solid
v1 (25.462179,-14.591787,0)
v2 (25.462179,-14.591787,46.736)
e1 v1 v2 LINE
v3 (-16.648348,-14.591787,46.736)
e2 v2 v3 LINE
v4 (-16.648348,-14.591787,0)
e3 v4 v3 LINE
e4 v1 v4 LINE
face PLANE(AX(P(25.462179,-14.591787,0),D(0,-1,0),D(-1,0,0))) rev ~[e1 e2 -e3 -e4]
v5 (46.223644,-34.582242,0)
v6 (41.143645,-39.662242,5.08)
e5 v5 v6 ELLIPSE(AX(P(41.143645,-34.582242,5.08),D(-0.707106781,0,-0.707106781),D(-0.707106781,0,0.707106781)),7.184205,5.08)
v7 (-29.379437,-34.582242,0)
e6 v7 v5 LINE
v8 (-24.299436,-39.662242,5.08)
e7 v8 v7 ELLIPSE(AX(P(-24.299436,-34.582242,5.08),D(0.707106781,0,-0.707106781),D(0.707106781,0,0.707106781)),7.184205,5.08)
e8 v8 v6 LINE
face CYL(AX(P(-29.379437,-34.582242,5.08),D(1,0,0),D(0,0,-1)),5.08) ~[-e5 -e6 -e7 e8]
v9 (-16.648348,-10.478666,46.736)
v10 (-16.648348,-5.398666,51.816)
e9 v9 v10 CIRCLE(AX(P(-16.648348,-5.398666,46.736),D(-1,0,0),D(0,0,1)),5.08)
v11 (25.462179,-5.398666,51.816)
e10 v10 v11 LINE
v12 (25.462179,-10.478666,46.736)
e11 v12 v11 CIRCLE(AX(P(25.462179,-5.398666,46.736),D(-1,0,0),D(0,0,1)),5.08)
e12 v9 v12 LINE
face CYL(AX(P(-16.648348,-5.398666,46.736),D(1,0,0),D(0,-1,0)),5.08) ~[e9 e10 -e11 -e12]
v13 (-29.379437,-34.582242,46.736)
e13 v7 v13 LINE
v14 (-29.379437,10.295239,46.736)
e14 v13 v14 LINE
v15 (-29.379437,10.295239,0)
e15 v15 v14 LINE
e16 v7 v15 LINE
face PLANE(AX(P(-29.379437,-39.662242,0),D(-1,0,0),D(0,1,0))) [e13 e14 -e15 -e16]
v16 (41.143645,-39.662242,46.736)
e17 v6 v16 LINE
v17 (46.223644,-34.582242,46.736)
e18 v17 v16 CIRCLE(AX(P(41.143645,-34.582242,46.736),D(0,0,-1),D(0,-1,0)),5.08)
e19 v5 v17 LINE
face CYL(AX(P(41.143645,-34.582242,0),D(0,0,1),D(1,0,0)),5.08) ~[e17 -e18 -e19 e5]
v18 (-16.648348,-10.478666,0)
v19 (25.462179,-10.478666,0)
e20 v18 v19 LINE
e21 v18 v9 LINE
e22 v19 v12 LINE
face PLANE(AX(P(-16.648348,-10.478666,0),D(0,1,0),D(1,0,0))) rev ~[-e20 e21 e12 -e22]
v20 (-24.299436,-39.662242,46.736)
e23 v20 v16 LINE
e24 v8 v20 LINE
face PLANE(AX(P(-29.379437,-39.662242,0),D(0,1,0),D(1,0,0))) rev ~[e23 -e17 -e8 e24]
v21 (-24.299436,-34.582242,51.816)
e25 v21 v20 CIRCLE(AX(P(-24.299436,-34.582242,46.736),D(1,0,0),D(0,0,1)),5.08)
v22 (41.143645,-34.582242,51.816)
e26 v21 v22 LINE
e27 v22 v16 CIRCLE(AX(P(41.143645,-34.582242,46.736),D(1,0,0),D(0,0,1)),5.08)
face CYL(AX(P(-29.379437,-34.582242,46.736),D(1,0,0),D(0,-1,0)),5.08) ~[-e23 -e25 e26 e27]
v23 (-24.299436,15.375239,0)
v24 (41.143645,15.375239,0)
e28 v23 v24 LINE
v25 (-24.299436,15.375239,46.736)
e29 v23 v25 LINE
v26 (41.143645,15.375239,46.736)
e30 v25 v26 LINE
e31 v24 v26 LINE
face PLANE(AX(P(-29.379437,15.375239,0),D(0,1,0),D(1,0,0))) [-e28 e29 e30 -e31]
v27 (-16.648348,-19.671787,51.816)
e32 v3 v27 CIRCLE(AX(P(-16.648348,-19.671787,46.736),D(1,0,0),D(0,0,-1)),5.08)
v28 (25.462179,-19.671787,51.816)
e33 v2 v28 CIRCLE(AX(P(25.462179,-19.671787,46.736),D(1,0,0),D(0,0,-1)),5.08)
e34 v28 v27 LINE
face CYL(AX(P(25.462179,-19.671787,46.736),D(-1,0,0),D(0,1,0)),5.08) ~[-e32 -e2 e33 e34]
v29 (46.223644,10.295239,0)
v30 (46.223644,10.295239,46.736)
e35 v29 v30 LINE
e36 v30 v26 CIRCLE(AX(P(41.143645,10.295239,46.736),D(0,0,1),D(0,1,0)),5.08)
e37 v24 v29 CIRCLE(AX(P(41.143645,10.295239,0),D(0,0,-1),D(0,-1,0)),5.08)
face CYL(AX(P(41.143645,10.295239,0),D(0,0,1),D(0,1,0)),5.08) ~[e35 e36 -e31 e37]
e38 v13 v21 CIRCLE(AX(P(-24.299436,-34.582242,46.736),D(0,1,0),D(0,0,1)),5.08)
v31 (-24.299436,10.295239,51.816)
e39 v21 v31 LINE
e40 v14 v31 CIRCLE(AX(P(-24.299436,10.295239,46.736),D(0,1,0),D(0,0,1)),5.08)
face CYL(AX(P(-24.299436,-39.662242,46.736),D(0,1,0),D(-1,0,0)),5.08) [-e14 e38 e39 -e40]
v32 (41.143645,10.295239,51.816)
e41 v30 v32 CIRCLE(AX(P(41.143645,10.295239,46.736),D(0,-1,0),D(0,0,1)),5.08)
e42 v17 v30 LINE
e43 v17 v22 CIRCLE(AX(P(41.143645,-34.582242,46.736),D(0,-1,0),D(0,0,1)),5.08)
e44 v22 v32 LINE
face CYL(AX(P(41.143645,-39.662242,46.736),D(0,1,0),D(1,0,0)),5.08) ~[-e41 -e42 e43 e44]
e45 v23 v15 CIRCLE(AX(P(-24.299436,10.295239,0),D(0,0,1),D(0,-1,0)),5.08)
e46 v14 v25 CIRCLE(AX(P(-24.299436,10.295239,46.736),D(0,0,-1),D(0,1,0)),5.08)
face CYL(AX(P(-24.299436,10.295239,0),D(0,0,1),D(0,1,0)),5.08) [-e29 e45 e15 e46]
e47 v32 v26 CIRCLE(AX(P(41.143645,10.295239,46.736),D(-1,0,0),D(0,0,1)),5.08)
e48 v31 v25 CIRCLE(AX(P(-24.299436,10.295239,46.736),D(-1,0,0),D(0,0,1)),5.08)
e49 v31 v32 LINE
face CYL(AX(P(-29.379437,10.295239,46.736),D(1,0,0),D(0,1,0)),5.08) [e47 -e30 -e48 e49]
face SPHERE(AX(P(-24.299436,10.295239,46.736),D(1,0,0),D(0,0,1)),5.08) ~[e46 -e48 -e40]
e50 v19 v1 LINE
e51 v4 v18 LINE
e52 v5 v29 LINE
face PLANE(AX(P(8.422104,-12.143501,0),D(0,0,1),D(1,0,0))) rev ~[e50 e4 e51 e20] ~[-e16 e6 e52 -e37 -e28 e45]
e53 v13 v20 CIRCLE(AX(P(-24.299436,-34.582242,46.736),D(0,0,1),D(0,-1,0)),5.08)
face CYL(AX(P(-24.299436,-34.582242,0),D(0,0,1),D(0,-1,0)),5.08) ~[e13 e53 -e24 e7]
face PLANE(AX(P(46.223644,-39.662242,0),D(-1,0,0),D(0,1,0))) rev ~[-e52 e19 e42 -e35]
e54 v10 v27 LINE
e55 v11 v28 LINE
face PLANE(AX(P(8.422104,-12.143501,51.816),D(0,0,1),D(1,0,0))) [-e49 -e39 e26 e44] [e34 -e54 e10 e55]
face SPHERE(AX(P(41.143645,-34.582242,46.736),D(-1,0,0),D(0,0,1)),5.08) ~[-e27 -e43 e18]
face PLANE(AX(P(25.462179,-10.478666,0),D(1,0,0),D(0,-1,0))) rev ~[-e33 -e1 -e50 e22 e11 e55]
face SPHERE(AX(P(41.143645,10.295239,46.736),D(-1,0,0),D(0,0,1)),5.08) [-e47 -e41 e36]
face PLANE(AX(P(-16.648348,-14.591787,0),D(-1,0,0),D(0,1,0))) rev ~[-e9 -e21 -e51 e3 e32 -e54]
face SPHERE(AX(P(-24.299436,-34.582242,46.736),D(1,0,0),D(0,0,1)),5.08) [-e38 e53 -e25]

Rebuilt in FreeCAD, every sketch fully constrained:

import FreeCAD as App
import Part
import Sketcher
from FreeCAD import Vector
Q = App.Units.Quantity


def edges_at(feature, points):
    """Names of the edges that pass closest to the given points."""
    edges = feature.Shape.Edges
    near = lambda p: min(range(len(edges)), key=lambda i: edges[i].distToShape(Part.Vertex(*p))[0])
    return sorted({f"Edge{near(p) + 1}" for p in points})

doc = App.newDocument("Part")
body = doc.addObject("PartDesign::Body", "Body")

# Sketch on XY plane
sketch1 = doc.addObject("Sketcher::SketchObject", "Sketch")
body.addObject(sketch1)
sketch1.AttachmentSupport = (doc.XY_Plane, [""])
sketch1.MapMode = "FlatFace"
sketch1.addGeometry([
    Part.LineSegment(Vector(-29.4, 15.4, 0), Vector(-29.4, -39.7, 0)),  # 0
    Part.LineSegment(Vector(-29.4, -39.7, 0), Vector(46.2, -39.7, 0)),  # 1
    Part.LineSegment(Vector(46.2, -39.7, 0), Vector(46.2, 15.4, 0)),  # 2
    Part.LineSegment(Vector(46.2, 15.4, 0), Vector(-29.4, 15.4, 0)),  # 3
    Part.LineSegment(Vector(-16.6, -14.6, 0), Vector(-16.6, -10.5, 0)),  # 4
    Part.LineSegment(Vector(-16.6, -10.5, 0), Vector(25.5, -10.5, 0)),  # 5
    Part.LineSegment(Vector(25.5, -10.5, 0), Vector(25.5, -14.6, 0)),  # 6
    Part.LineSegment(Vector(25.5, -14.6, 0), Vector(-16.6, -14.6, 0)),  # 7
], False)
sketch1.addConstraint([
    Sketcher.Constraint("Coincident", 0, 2, 1, 1),
    Sketcher.Constraint("Coincident", 1, 2, 2, 1),
    Sketcher.Constraint("Coincident", 2, 2, 3, 1),
    Sketcher.Constraint("Coincident", 3, 2, 0, 1),
    Sketcher.Constraint("Coincident", 4, 2, 5, 1),
    Sketcher.Constraint("Coincident", 5, 2, 6, 1),
    Sketcher.Constraint("Coincident", 6, 2, 7, 1),
    Sketcher.Constraint("Coincident", 7, 2, 4, 1),
    Sketcher.Constraint("Vertical", 0),
    Sketcher.Constraint("Horizontal", 1),
    Sketcher.Constraint("Vertical", 2),
    Sketcher.Constraint("Horizontal", 3),
    Sketcher.Constraint("Vertical", 4),
    Sketcher.Constraint("Horizontal", 5),
    Sketcher.Constraint("Vertical", 6),
    Sketcher.Constraint("Horizontal", 7),
    Sketcher.Constraint("DistanceX", 1, 1, 1, 2, Q("75.603081 mm")),
    Sketcher.Constraint("DistanceY", 0, 2, 0, 1, Q("55.037481 mm")),
    Sketcher.Constraint("DistanceY", 4, 1, 4, 2, Q("4.113121 mm")),
    Sketcher.Constraint("DistanceX", 5, 1, 5, 2, Q("42.110527 mm")),
    Sketcher.Constraint("DistanceY", 0, 2, -1, 1, Q("39.662242 mm")),
    Sketcher.Constraint("DistanceX", -1, 1, 5, 2, Q("25.462179 mm")),
    Sketcher.Constraint("DistanceX", 3, 2, 4, 2, Q("12.731089 mm")),
    Sketcher.Constraint("DistanceY", 4, 2, -1, 1, Q("10.478666 mm")),
])
pad1 = doc.addObject("PartDesign::Pad", "Pad")
body.addObject(pad1)
pad1.Profile = sketch1
pad1.Length = Q("2.04 in")
doc.recompute()

fillet = doc.addObject("PartDesign::Fillet", "Fillet")
body.addObject(fillet)
fillet.Base = (pad1, edges_at(pad1, [(4.407, -14.592, 51.816)]))
fillet.Radius = Q("0.2 in")
doc.recompute()

fillet2 = doc.addObject("PartDesign::Fillet", "Fillet001")
body.addObject(fillet2)
fillet2.Base = (fillet, edges_at(fillet, [
    (8.422, 15.375, 51.816),
    (8.422, -39.662, 51.816),
    (46.224, -12.144, 51.816),
    (-29.379, -12.144, 51.816),
    (4.407, -10.479, 51.816),
    (-29.379, -39.662, 25.908),
    (46.224, -39.662, 25.908),
    (8.422, -39.662, 0),
    (46.224, 15.375, 25.908),
    (-29.379, 15.375, 25.908),
]))
fillet2.Radius = Q("0.2 in")

doc.recompute()
